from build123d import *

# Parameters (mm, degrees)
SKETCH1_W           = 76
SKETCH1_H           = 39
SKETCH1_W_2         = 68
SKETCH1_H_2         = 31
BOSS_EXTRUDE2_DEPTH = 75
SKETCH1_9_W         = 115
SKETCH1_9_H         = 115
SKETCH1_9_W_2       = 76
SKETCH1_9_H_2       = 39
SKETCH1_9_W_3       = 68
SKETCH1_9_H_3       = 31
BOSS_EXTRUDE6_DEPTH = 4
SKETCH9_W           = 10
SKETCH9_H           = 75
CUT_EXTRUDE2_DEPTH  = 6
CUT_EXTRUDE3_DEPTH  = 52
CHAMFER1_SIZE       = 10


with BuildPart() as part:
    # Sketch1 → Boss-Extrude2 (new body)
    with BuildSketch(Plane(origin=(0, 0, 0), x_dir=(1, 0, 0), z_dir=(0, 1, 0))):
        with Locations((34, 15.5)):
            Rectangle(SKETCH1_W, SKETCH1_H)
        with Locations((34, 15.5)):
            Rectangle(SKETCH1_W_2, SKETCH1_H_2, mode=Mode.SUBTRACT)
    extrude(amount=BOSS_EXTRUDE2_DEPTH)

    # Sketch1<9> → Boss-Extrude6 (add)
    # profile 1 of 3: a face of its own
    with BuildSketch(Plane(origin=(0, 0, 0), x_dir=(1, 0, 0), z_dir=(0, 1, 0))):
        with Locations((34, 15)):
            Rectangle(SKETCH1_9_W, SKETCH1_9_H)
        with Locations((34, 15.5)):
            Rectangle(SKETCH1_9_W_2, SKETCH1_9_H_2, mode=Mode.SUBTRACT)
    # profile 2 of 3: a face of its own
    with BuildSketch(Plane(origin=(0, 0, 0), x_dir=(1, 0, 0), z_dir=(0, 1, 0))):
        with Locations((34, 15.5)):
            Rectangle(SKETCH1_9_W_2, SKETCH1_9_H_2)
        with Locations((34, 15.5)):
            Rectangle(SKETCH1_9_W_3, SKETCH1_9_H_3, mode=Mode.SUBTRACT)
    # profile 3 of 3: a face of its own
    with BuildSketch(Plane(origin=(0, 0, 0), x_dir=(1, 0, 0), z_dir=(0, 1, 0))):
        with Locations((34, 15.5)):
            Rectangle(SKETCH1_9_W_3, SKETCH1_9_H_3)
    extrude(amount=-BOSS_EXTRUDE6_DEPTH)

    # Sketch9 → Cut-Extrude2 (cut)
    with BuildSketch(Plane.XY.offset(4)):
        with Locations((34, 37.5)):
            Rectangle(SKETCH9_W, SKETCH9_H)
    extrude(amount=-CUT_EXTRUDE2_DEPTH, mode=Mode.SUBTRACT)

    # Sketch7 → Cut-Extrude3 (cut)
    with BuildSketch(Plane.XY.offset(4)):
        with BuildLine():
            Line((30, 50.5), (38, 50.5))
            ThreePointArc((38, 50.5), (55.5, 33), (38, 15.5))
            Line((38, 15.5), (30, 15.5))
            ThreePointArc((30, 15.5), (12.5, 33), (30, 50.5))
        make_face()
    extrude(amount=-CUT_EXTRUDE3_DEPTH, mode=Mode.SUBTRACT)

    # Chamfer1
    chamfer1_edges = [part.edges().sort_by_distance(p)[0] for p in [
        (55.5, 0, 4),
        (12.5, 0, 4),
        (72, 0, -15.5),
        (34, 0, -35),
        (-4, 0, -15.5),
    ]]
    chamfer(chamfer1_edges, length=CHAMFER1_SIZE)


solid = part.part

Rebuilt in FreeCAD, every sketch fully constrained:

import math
import FreeCAD as App
import Part
import Sketcher
from FreeCAD import Vector


def edges_at(feature, points):
    """Names of the edges that pass closest to the given points."""
    edges = feature.Shape.Edges
    near = lambda p: min(range(len(edges)), key=lambda i: edges[i].distToShape(Part.Vertex(*p))[0])
    return sorted({f"Edge{near(p) + 1}" for p in points})


def add_polygon(sketch, points):
    """Adds a closed chain of lines whose ends are joined by coincident constraints."""
    first, n = sketch.GeometryCount, len(points)
    for a, b in zip(points, points[1:] + points[:1]):
        sketch.addGeometry(Part.LineSegment(App.Vector(*a, 0), App.Vector(*b, 0)), False)
    for i in range(n):
        sketch.addConstraint(Sketcher.Constraint("Coincident", first + i, 2, first + (i + 1) % n, 1))

doc = App.newDocument("Part")
body = doc.addObject("PartDesign::Body", "Body")

sketch1 = body.newObject("Sketcher::SketchObject", "Sketch")
sketch1.AttachmentSupport = (doc.getObject("XZ_Plane"), [""])
sketch1.MapMode = "FlatFace"
add_polygon(sketch1, [(-4, -35), (-4, 4), (72, 4), (72, -35)])
add_polygon(sketch1, [(68, 0), (0, 0), (0, -31), (68, -31)])
sketch1.addConstraint(Sketcher.Constraint("Vertical", 0))
sketch1.addConstraint(Sketcher.Constraint("Horizontal", 1))
sketch1.addConstraint(Sketcher.Constraint("Vertical", 2))
sketch1.addConstraint(Sketcher.Constraint("Horizontal", 3))
sketch1.addConstraint(Sketcher.Constraint("Horizontal", 4))
sketch1.addConstraint(Sketcher.Constraint("Vertical", 5))
sketch1.addConstraint(Sketcher.Constraint("Horizontal", 6))
sketch1.addConstraint(Sketcher.Constraint("Vertical", 7))
sketch1.addConstraint(Sketcher.Constraint("Coincident", 4, 2, -1, 1))
sketch1.addConstraint(Sketcher.Constraint("DistanceX", 1, 1, 1, 2, 76.0))
sketch1.addConstraint(Sketcher.Constraint("DistanceX", 4, 2, 4, 1, 68.0))
sketch1.addConstraint(Sketcher.Constraint("DistanceY", 0, 1, 0, 2, 39.0))
sketch1.addConstraint(Sketcher.Constraint("DistanceY", 5, 2, 5, 1, 31.0))
sketch1.addConstraint(Sketcher.Constraint("DistanceX", 0, 2, -1, 1, 4.0))
sketch1.addConstraint(Sketcher.Constraint("DistanceY", -1, 1, 0, 2, 4.0))
pad1 = body.newObject("PartDesign::Pad", "Pad")
pad1.Profile = sketch1
pad1.Length = 75
pad1.Reversed = True

sketch2 = body.newObject("Sketcher::SketchObject", "Sketch001")
sketch2.AttachmentSupport = (doc.getObject("XZ_Plane"), [""])
sketch2.MapMode = "FlatFace"
add_polygon(sketch2, [(-24, -72), (-24, 42), (92, 42), (92, -72)])
sketch2.addConstraint(Sketcher.Constraint("Vertical", 0))
sketch2.addConstraint(Sketcher.Constraint("Horizontal", 1))
sketch2.addConstraint(Sketcher.Constraint("Vertical", 2))
sketch2.addConstraint(Sketcher.Constraint("Horizontal", 3))
sketch2.addConstraint(Sketcher.Constraint("Equal", 3, 0))
sketch2.addConstraint(Sketcher.Constraint("DistanceX", 1, 1, 1, 2, 115.0))
sketch2.addConstraint(Sketcher.Constraint("DistanceX", 0, 2, -1, 1, 23.5))
sketch2.addConstraint(Sketcher.Constraint("DistanceY", -1, 1, 0, 2, 42.5))
pad2 = body.newObject("PartDesign::Pad", "Pad001")
pad2.Profile = sketch2
pad2.Length = 4

sketch3 = body.newObject("Sketcher::SketchObject", "Sketch002")
sketch3.AttachmentSupport = (doc.getObject("XY_Plane"), [""])
sketch3.MapMode = "FlatFace"
sketch3.AttachmentOffset = App.Placement(Vector(0, 0, 4), App.Rotation())
add_polygon(sketch3, [(29, 75), (29, 0), (39, 0), (39, 75)])
sketch3.addConstraint(Sketcher.Constraint("Vertical", 0))
sketch3.addConstraint(Sketcher.Constraint("Horizontal", 1))
sketch3.addConstraint(Sketcher.Constraint("Vertical", 2))
sketch3.addConstraint(Sketcher.Constraint("Horizontal", 3))
sketch3.addConstraint(Sketcher.Constraint("PointOnObject", 0, 2, -1))
sketch3.addConstraint(Sketcher.Constraint("DistanceX", 1, 1, 1, 2, 10.0))
sketch3.addConstraint(Sketcher.Constraint("DistanceY", 0, 2, 0, 1, 75.0))
sketch3.addConstraint(Sketcher.Constraint("DistanceX", -1, 1, 0, 2, 29.0))
pocket1 = body.newObject("PartDesign::Pocket", "Pocket")
pocket1.Profile = sketch3
pocket1.Length = 6

sketch4 = body.newObject("Sketcher::SketchObject", "Sketch003")
sketch4.AttachmentSupport = (doc.getObject("XY_Plane"), [""])
sketch4.MapMode = "FlatFace"
sketch4.AttachmentOffset = App.Placement(Vector(0, 0, 4), App.Rotation())
sketch4.addGeometry(Part.LineSegment(Vector(38, 50, 0), Vector(30, 50, 0)), False)
sketch4.addGeometry(Part.ArcOfCircle(Part.Circle(Vector(30, 33, 0), Vector(0, 0, 1), 18), math.radians(90), math.radians(270)), False)
sketch4.addGeometry(Part.LineSegment(Vector(30, 16, 0), Vector(38, 16, 0)), False)
sketch4.addGeometry(Part.ArcOfCircle(Part.Circle(Vector(38, 33, 0), Vector(0, 0, 1), 18), math.radians(-90), math.radians(90)), False)
sketch4.addConstraint(Sketcher.Constraint("Tangent", 0, 2, 1, 1))
sketch4.addConstraint(Sketcher.Constraint("Tangent", 1, 2, 2, 1))
sketch4.addConstraint(Sketcher.Constraint("Tangent", 2, 2, 3, 1))
sketch4.addConstraint(Sketcher.Constraint("Tangent", 3, 2, 0, 1))
sketch4.addConstraint(Sketcher.Constraint("Horizontal", 0))
sketch4.addConstraint(Sketcher.Constraint("Horizontal", 2))
sketch4.addConstraint(Sketcher.Constraint("Radius", 1, 17.5))
sketch4.addConstraint(Sketcher.Constraint("DistanceX", 0, 2, 0, 1, 8.0))
sketch4.addConstraint(Sketcher.Constraint("DistanceX", -1, 1, 1, 3, 30.0))
sketch4.addConstraint(Sketcher.Constraint("DistanceY", -1, 1, 1, 3, 33.0))
pocket2 = body.newObject("PartDesign::Pocket", "Pocket001")
pocket2.Profile = sketch4
pocket2.Length = 52
doc.recompute()

chamfer = body.newObject("PartDesign::Chamfer", "Chamfer")
chamfer.Base = (pocket2, edges_at(pocket2, [
    (55.5, 0, 4),
    (12.5, 0, 4),
    (72, 0, -15.5),
    (34, 0, -35),
    (-4, 0, -15.5),
]))
chamfer.Size = 10

doc.recompute()
